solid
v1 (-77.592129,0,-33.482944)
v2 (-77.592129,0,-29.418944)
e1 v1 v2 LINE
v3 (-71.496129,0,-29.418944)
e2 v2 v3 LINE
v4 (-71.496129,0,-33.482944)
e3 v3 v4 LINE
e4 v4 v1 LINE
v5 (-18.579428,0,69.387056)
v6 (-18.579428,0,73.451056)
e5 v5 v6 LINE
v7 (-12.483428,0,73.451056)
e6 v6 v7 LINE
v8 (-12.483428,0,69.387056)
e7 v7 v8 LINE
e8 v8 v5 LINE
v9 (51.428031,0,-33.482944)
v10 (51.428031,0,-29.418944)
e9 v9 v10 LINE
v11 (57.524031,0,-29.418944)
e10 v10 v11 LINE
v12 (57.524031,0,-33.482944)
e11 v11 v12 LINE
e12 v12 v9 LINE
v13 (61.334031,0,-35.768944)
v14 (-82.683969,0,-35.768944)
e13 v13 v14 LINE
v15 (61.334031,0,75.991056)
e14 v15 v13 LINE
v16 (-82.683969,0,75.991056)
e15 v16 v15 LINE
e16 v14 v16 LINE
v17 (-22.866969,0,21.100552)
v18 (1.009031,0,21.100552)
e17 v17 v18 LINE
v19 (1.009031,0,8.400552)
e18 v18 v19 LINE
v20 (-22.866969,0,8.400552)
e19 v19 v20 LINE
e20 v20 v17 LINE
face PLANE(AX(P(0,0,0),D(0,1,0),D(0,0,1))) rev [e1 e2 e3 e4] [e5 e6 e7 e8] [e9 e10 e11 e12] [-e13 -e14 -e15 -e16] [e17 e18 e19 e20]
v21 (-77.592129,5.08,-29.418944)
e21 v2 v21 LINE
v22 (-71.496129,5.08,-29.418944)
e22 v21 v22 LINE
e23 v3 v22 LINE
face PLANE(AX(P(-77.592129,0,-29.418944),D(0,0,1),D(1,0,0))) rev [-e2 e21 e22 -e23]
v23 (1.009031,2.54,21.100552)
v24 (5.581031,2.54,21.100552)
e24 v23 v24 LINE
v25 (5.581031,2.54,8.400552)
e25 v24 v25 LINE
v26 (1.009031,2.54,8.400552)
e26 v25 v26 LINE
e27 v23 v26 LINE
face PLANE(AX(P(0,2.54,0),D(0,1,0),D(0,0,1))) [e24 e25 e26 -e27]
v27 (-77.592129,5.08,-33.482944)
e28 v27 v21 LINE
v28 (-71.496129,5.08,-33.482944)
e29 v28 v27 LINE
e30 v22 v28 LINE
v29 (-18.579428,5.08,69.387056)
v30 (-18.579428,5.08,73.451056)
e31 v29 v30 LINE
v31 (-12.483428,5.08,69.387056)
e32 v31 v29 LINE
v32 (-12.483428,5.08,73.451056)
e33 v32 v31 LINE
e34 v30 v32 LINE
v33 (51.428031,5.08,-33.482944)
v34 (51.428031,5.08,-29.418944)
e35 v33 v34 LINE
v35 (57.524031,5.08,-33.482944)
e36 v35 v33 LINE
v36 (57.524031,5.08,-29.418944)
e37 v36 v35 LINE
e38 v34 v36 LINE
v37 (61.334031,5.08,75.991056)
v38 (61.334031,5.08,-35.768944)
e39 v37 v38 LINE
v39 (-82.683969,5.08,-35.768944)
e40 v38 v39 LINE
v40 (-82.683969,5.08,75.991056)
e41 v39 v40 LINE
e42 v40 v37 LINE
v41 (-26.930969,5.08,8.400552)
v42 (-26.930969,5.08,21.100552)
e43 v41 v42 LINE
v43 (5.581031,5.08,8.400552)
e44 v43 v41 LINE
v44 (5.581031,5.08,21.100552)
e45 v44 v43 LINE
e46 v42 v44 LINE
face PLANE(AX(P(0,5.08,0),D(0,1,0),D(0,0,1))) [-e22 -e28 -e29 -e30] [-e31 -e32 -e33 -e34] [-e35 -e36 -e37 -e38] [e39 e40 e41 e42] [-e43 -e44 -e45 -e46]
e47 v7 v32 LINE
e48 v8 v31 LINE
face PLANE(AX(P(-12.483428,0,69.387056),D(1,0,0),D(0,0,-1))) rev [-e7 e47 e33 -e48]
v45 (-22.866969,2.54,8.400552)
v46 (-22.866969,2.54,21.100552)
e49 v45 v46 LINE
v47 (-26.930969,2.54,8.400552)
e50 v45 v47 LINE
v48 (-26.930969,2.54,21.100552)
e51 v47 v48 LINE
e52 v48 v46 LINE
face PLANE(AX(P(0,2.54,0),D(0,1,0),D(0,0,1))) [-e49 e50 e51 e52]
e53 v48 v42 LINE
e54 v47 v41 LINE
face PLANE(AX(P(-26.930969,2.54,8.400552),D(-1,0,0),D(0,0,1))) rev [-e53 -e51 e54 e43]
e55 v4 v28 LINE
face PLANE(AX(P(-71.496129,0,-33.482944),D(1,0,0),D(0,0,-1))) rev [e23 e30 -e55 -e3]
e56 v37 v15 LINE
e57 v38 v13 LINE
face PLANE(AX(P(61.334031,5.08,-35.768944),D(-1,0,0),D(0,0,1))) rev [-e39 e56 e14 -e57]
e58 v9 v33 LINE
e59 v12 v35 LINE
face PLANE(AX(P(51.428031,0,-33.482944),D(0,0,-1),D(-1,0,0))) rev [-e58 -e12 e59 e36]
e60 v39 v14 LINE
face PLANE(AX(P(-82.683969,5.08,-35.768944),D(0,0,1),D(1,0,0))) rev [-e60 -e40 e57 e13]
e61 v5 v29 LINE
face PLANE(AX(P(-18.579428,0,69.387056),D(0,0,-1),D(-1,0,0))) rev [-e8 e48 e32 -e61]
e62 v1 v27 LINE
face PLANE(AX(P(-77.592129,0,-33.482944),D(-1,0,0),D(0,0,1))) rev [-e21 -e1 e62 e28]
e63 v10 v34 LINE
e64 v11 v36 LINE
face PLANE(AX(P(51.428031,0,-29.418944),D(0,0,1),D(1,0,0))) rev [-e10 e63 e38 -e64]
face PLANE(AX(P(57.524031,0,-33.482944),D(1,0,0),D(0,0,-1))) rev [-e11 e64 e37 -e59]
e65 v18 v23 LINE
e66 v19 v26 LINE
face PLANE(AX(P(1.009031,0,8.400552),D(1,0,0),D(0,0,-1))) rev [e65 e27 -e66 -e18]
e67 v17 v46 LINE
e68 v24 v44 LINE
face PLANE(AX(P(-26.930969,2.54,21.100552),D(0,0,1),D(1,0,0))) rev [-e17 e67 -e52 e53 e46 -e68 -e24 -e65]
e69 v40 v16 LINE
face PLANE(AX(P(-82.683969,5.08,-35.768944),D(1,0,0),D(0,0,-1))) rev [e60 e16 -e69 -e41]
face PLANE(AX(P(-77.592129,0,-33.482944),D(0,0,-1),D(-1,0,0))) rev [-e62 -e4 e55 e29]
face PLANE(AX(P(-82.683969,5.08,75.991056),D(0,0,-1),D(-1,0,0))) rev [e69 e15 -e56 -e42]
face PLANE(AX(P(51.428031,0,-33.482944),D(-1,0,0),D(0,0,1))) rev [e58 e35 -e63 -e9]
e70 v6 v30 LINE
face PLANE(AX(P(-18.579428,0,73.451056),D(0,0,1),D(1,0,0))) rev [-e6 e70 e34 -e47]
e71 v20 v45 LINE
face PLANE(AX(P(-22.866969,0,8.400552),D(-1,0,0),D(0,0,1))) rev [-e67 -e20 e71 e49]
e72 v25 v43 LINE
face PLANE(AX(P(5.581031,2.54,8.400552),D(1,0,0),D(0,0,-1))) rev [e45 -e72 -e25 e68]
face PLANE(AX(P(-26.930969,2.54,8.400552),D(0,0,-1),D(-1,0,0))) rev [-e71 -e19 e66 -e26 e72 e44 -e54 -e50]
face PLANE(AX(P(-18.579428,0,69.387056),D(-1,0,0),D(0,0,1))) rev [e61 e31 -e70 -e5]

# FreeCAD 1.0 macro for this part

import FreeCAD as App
import Part
import Sketcher
Q = App.Units.Quantity


def add_polygon(sketch, points):
    """Adds a closed chain of lines whose ends are joined by coincident constraints."""
    first, n = sketch.GeometryCount, len(points)
    for a, b in zip(points, points[1:] + points[:1]):
        sketch.addGeometry(Part.LineSegment(App.Vector(*a, 0), App.Vector(*b, 0)), False)
    for i in range(n):
        sketch.addConstraint(Sketcher.Constraint("Coincident", first + i, 2, first + (i + 1) % n, 1))

doc = App.newDocument("Part")
body = doc.addObject("PartDesign::Body", "Body")

# Sketch on XZ plane
sketch1 = body.newObject("Sketcher::SketchObject", "Sketch")
sketch1.AttachmentSupport = (doc.getObject("XZ_Plane"), [""])
sketch1.MapMode = "FlatFace"
add_polygon(sketch1, [(-83, -36), (-83, 76), (61, 76), (61, -36)])  # lines 0-3
sketch1.addConstraint([
    Sketcher.Constraint("Vertical", 0),
    Sketcher.Constraint("Horizontal", 1),
    Sketcher.Constraint("Vertical", 2),
    Sketcher.Constraint("Horizontal", 3),
    Sketcher.Constraint("DistanceY", 0, 1, 0, 2, Q("4.4 in")),
    Sketcher.Constraint("DistanceX", 1, 1, 1, 2, Q("5.67 in")),
    Sketcher.Constraint("DistanceX", 0, 2, -1, 1, 82.683969),
    Sketcher.Constraint("DistanceY", -1, 1, 0, 2, 75.991056),
])
pad1 = body.newObject("PartDesign::Pad", "Pad")
pad1.Profile = sketch1
pad1.Length = Q("0.2 in")
pad1.Reversed = True

# Sketch on XZ plane
sketch2 = body.newObject("Sketcher::SketchObject", "Sketch001")
sketch2.AttachmentSupport = (doc.getObject("XZ_Plane"), [""])
sketch2.MapMode = "FlatFace"
sketch2.AttachmentOffset = App.Placement(App.Vector(0, 0, -0.2 * 25.4), App.Rotation())
add_polygon(sketch2, [(-77.6, -33.5), (-77.6, -29.4), (-71.5, -29.4), (-71.5, -33.5)])  # lines 0-3
add_polygon(sketch2, [(51.4, -33.5), (51.4, -29.4), (57.5, -29.4), (57.5, -33.5)])  # lines 4-7
add_polygon(sketch2, [(-18.6, 69.4), (-18.6, 73.5), (-12.5, 73.5), (-12.5, 69.4)])  # lines 8-11
sketch2.addConstraint([
    Sketcher.Constraint("Vertical", 0),
    Sketcher.Constraint("Horizontal", 1),
    Sketcher.Constraint("Vertical", 2),
    Sketcher.Constraint("Horizontal", 3),
    Sketcher.Constraint("Vertical", 4),
    Sketcher.Constraint("Horizontal", 5),
    Sketcher.Constraint("Vertical", 6),
    Sketcher.Constraint("Horizontal", 7),
    Sketcher.Constraint("Vertical", 8),
    Sketcher.Constraint("Horizontal", 9),
    Sketcher.Constraint("Vertical", 10),
    Sketcher.Constraint("Horizontal", 11),
    Sketcher.Constraint("Horizontal", 1, 2, 4, 2),
    Sketcher.Constraint("Horizontal", 3, 2, 6, 2),
    Sketcher.Constraint("Equal", 3, 5),
    Sketcher.Constraint("Equal", 7, 9),
    Sketcher.Constraint("Equal", 6, 8),
    Sketcher.Constraint("DistanceX", 1, 1, 1, 2, Q("0.24 in")),
    Sketcher.Constraint("DistanceY", 0, 1, 0, 2, Q("0.16 in")),
    Sketcher.Constraint("DistanceY", 1, 2, 8, 2, Q("4.05 in")),
    Sketcher.Constraint("DistanceX", 1, 2, 8, 2, 52.916702),
    Sketcher.Constraint("DistanceX", 0, 2, -1, 1, 77.592129),
    Sketcher.Constraint("DistanceX", -1, 1, 4, 2, 51.428031),
    Sketcher.Constraint("DistanceY", 0, 2, -1, 1, 29.418944),
])
pocket1 = body.newObject("PartDesign::Pocket", "Pocket")
pocket1.Profile = sketch2
pocket1.Length = Q("0.2 in")
pocket1.Reversed = True

# Sketch on XZ plane
sketch3 = body.newObject("Sketcher::SketchObject", "Sketch002")
sketch3.AttachmentSupport = (doc.getObject("XZ_Plane"), [""])
sketch3.MapMode = "FlatFace"
sketch3.AttachmentOffset = App.Placement(App.Vector(0, 0, -0.2 * 25.4), App.Rotation())
add_polygon(sketch3, [(-27, 8), (-27, 21), (6, 21), (6, 8)])  # lines 0-3
sketch3.addConstraint([
    Sketcher.Constraint("Vertical", 0),
    Sketcher.Constraint("Horizontal", 1),
    Sketcher.Constraint("Vertical", 2),
    Sketcher.Constraint("Horizontal", 3),
    Sketcher.Constraint("DistanceY", 0, 1, 0, 2, Q("0.5 in")),
    Sketcher.Constraint("DistanceX", 1, 1, 1, 2, Q("1.28 in")),
    Sketcher.Constraint("DistanceX", 0, 2, -1, 1, 26.930969),
    Sketcher.Constraint("DistanceY", -1, 1, 0, 2, 21.100552),
])
pocket2 = body.newObject("PartDesign::Pocket", "Pocket001")
pocket2.Profile = sketch3
pocket2.Length = Q("0.1 in")
pocket2.Reversed = True

# Sketch on XZ plane
sketch4 = body.newObject("Sketcher::SketchObject", "Sketch003")
sketch4.AttachmentSupport = (doc.getObject("XZ_Plane"), [""])
sketch4.MapMode = "FlatFace"
sketch4.AttachmentOffset = App.Placement(App.Vector(0, 0, -0.1 * 25.4), App.Rotation())
add_polygon(sketch4, [(-23, 8), (-23, 21), (1, 21), (1, 8)])  # lines 0-3
sketch4.addConstraint([
    Sketcher.Constraint("Vertical", 0),
    Sketcher.Constraint("Horizontal", 1),
    Sketcher.Constraint("Vertical", 2),
    Sketcher.Constraint("Horizontal", 3),
    Sketcher.Constraint("DistanceY", 0, 1, 0, 2, Q("0.5 in")),
    Sketcher.Constraint("DistanceX", 1, 1, 1, 2, Q("0.94 in")),
    Sketcher.Constraint("DistanceX", 0, 2, -1, 1, 22.866969),
    Sketcher.Constraint("DistanceY", -1, 1, 0, 2, 21.100552),
])
pocket3 = body.newObject("PartDesign::Pocket", "Pocket002")
pocket3.Profile = sketch4
pocket3.Length = Q("0.1 in")
pocket3.Reversed = True

doc.recompute()
